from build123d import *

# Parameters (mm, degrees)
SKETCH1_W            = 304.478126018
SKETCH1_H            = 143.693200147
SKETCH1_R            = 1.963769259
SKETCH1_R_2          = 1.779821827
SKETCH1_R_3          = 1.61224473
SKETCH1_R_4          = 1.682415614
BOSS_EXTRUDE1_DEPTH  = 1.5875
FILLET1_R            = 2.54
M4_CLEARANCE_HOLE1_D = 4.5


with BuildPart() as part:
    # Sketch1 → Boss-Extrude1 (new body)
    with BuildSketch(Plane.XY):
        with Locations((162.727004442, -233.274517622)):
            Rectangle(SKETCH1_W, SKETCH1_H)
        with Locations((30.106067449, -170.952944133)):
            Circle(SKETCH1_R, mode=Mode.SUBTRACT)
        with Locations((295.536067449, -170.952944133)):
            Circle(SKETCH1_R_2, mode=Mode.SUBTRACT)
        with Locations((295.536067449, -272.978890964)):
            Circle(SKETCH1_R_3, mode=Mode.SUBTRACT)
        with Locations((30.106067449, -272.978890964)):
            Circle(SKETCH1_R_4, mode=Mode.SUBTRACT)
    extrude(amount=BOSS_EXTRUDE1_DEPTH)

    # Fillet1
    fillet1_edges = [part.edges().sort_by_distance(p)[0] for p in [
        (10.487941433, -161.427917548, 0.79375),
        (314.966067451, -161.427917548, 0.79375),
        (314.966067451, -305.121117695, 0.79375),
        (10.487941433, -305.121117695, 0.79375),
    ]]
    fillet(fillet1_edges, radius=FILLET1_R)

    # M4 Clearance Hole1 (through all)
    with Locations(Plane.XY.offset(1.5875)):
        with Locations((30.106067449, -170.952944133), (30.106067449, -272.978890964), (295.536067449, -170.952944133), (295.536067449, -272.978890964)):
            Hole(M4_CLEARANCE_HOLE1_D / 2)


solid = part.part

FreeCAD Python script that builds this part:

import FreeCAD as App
import Part
import Sketcher

V = App.Vector
Q = App.Units.Quantity


def edges_at(feature, points):
    """Names of the edges that pass closest to the given points."""
    edges = feature.Shape.Edges
    near = lambda p: min(range(len(edges)), key=lambda i: edges[i].distToShape(Part.Vertex(*p))[0])
    return sorted({f"Edge{near(p) + 1}" for p in points})


def add_polygon(sketch, points):
    """Adds a closed chain of lines whose ends are joined by coincident constraints."""
    first, n = sketch.GeometryCount, len(points)
    for a, b in zip(points, points[1:] + points[:1]):
        sketch.addGeometry(Part.LineSegment(App.Vector(*a, 0), App.Vector(*b, 0)), False)
    for i in range(n):
        sketch.addConstraint(Sketcher.Constraint("Coincident", first + i, 2, first + (i + 1) % n, 1))

doc = App.newDocument("Part")
body = doc.addObject("PartDesign::Body", "Body")

sketch1 = body.newObject("Sketcher::SketchObject", "Sketch")
sketch1.AttachmentSupport = (doc.getObject("XY_Plane"), [""])
sketch1.MapMode = "FlatFace"
add_polygon(sketch1, [(10.5, -161.4), (10.5, -305.1), (315, -305.1), (315, -161.4)])
sketch1.addGeometry(Part.Circle(V(30.1, -273, 0), V(0, 0, 1), 1.7), False)
sketch1.addGeometry(Part.Circle(V(295.5, -273, 0), V(0, 0, 1), 1.6), False)
sketch1.addGeometry(Part.Circle(V(30.1, -171, 0), V(0, 0, 1), 2), False)
sketch1.addGeometry(Part.Circle(V(295.5, -171, 0), V(0, 0, 1), 1.8), False)
sketch1.addConstraint([
    Sketcher.Constraint("Vertical", 0),
    Sketcher.Constraint("Horizontal", 1),
    Sketcher.Constraint("Vertical", 2),
    Sketcher.Constraint("Horizontal", 3),
    Sketcher.Constraint("Horizontal", 4, 3, 5, 3),
    Sketcher.Constraint("Horizontal", 6, 3, 7, 3),
    Sketcher.Constraint("Vertical", 4, 3, 6, 3),
    Sketcher.Constraint("Vertical", 5, 3, 7, 3),
    Sketcher.Constraint("DistanceX", 4, 3, 5, 3, Q("10.45 in")),
    Sketcher.Constraint("Diameter", 4, Q("3.364831 mm")),
    Sketcher.Constraint("Diameter", 5, Q("3.224489 mm")),
    Sketcher.Constraint("Diameter", 6, Q("3.927539 mm")),
    Sketcher.Constraint("Diameter", 7, Q("3.559644 mm")),
    Sketcher.Constraint("DistanceY", 0, 2, 0, 1, Q("143.6932 mm")),
    Sketcher.Constraint("DistanceX", 5, 3, 1, 2, Q("19.43 mm")),
    Sketcher.Constraint("DistanceX", 1, 1, 1, 2, Q("304.478126 mm")),
    Sketcher.Constraint("DistanceY", 4, 3, -1, 1, Q("272.978891 mm")),
    Sketcher.Constraint("DistanceX", -1, 1, 0, 2, Q("10.487941 mm")),
    Sketcher.Constraint("DistanceY", 6, 3, -1, 1, Q("170.952944 mm")),
    Sketcher.Constraint("DistanceY", 0, 2, -1, 1, Q("305.121118 mm")),
])
pad1 = body.newObject("PartDesign::Pad", "Pad")
pad1.Profile = sketch1
pad1.Length = Q("0.0625 in")
doc.recompute()

fillet = body.newObject("PartDesign::Fillet", "Fillet")
fillet.Base = (pad1, edges_at(pad1, [
    (10.488, -161.428, 0.794),
    (314.966, -161.428, 0.794),
    (314.966, -305.121, 0.794),
    (10.488, -305.121, 0.794),
]))
fillet.Radius = Q("0.1 in")

sketch2 = body.newObject("Sketcher::SketchObject", "Sketch001")
sketch2.AttachmentSupport = (doc.getObject("XY_Plane"), [""])
sketch2.MapMode = "FlatFace"
sketch2.AttachmentOffset = App.Placement(V(0, 0, 0.0625 * 25.4), App.Rotation())
sketch2.addGeometry([
    Part.Circle(V(30.1, -171, 0), V(0, 0, 1), 2.2),
    Part.Circle(V(30.1, -273, 0), V(0, 0, 1), 2.2),
    Part.Circle(V(295.5, -171, 0), V(0, 0, 1), 2.2),
    Part.Circle(V(295.5, -273, 0), V(0, 0, 1), 2.2),
], False)
sketch2.addConstraint([
    Sketcher.Constraint("Equal", 0, 1),
    Sketcher.Constraint("Equal", 1, 2),
    Sketcher.Constraint("Equal", 2, 3),
    Sketcher.Constraint("Horizontal", 0, 3, 2, 3),
    Sketcher.Constraint("Horizontal", 1, 3, 3, 3),
    Sketcher.Constraint("Vertical", 0, 3, 1, 3),
    Sketcher.Constraint("Vertical", 2, 3, 3, 3),
    Sketcher.Constraint("Diameter", 0, Q("4.5 mm")),
    Sketcher.Constraint("DistanceX", 0, 3, 2, 3, Q("10.45 in")),
    Sketcher.Constraint("DistanceY", 1, 3, -1, 1, Q("272.978891 mm")),
    Sketcher.Constraint("DistanceX", -1, 1, 0, 3, Q("30.106067 mm")),
    Sketcher.Constraint("DistanceY", 0, 3, -1, 1, Q("170.952944 mm")),
])
doc.recompute()
hole = body.newObject("PartDesign::Hole", "Hole")
hole.Profile = sketch2
hole.ThreadType = "None"
hole.Diameter = 4.5
hole.DepthType = "ThroughAll"

doc.recompute()
